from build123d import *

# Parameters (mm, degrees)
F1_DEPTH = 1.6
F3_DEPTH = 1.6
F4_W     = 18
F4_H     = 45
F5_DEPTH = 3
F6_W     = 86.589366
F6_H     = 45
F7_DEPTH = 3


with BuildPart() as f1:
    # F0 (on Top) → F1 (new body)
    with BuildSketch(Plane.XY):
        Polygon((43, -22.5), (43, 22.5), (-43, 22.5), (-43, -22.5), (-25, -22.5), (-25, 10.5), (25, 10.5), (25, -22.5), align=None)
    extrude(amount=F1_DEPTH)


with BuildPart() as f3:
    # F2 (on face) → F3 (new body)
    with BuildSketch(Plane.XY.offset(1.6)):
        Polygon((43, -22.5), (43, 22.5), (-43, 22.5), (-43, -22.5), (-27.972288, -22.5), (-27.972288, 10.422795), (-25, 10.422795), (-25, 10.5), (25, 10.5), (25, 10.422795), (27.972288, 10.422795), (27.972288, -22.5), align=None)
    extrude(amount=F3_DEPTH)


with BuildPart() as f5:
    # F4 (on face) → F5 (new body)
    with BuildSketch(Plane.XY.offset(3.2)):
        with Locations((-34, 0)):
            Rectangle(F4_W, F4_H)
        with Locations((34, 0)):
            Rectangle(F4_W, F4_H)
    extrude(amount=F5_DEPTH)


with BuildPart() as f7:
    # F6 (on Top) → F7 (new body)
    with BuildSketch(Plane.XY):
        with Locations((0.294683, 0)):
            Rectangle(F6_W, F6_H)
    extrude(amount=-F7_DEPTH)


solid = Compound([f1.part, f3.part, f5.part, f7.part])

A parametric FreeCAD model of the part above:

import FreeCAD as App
import Part
import Sketcher
from FreeCAD import Vector
Q = App.Units.Quantity


def add_polygon(sketch, points):
    """Adds a closed chain of lines whose ends are joined by coincident constraints."""
    first, n = sketch.GeometryCount, len(points)
    for a, b in zip(points, points[1:] + points[:1]):
        sketch.addGeometry(Part.LineSegment(App.Vector(*a, 0), App.Vector(*b, 0)), False)
    for i in range(n):
        sketch.addConstraint(Sketcher.Constraint("Coincident", first + i, 2, first + (i + 1) % n, 1))

doc = App.newDocument("Part")
body = doc.addObject("PartDesign::Body", "Body")

# Sketch on XY plane
sketch1 = body.newObject("Sketcher::SketchObject", "Sketch")
sketch1.AttachmentSupport = (doc.getObject("XY_Plane"), [""])
sketch1.MapMode = "FlatFace"
add_polygon(sketch1, [(43, -22), (43, 22), (-43, 22), (-43, -22), (-25, -22), (-25, 10), (25, 10), (25, -22)])  # lines 0-7
sketch1.addConstraint([
    Sketcher.Constraint("Vertical", 0),
    Sketcher.Constraint("Horizontal", 1),
    Sketcher.Constraint("Vertical", 2),
    Sketcher.Constraint("Horizontal", 3),
    Sketcher.Constraint("Vertical", 4),
    Sketcher.Constraint("Horizontal", 5),
    Sketcher.Constraint("Vertical", 6),
    Sketcher.Constraint("Horizontal", 7),
    Sketcher.Constraint("Symmetric", 0, 2, 2, 2, -1, 1),
    Sketcher.Constraint("Symmetric", 3, 2, 6, 2, -2),
    Sketcher.Constraint("DistanceX", 1, 2, 1, 1, Q("86 mm")),
    Sketcher.Constraint("DistanceX", 3, 1, 3, 2, Q("18 mm")),
    Sketcher.Constraint("DistanceY", 0, 1, 0, 2, Q("45 mm")),
    Sketcher.Constraint("DistanceY", 4, 1, 4, 2, Q("33 mm")),
])
pad1 = body.newObject("PartDesign::Pad", "Pad")
pad1.Profile = sketch1
pad1.Length = 1.6
body2 = doc.addObject("PartDesign::Body", "Body001")

# Sketch on XY plane
sketch2 = body2.newObject("Sketcher::SketchObject", "Sketch001")
sketch2.AttachmentSupport = (doc.getObject("XY_Plane001"), [""])
sketch2.MapMode = "FlatFace"
sketch2.AttachmentOffset = App.Placement(Vector(0, 0, 1.6), App.Rotation())
add_polygon(sketch2, [(43, -22.5), (43, 22.5), (-43, 22.5), (-43, -22.5), (-27.97, -22.5), (-27.97, 10.42), (-25, 10.42), (-25, 10.5), (25, 10.5), (25, 10.42), (27.97, 10.42), (27.97, -22.5)])  # lines 0-11
sketch2.addConstraint([
    Sketcher.Constraint("Vertical", 0),
    Sketcher.Constraint("Horizontal", 1),
    Sketcher.Constraint("Vertical", 2),
    Sketcher.Constraint("Horizontal", 3),
    Sketcher.Constraint("Vertical", 4),
    Sketcher.Constraint("Horizontal", 5),
    Sketcher.Constraint("Vertical", 6),
    Sketcher.Constraint("Horizontal", 7),
    Sketcher.Constraint("Vertical", 8),
    Sketcher.Constraint("Horizontal", 9),
    Sketcher.Constraint("Vertical", 10),
    Sketcher.Constraint("Horizontal", 11),
    Sketcher.Constraint("Symmetric", 0, 2, 2, 2, -1, 1),
    Sketcher.Constraint("Symmetric", 5, 2, 8, 2, -2),
    Sketcher.Constraint("Symmetric", 3, 2, 10, 2, -2),
    Sketcher.Constraint("DistanceX", 1, 2, 1, 1, Q("86 mm")),
    Sketcher.Constraint("DistanceX", 7, 1, 7, 2, Q("50 mm")),
    Sketcher.Constraint("DistanceY", 0, 1, 0, 2, Q("45 mm")),
    Sketcher.Constraint("DistanceY", 6, 2, 1, 2, Q("12 mm")),
    Sketcher.Constraint("DistanceX", 3, 1, 3, 2, Q("15.027712 mm")),
    Sketcher.Constraint("DistanceY", 4, 1, 4, 2, Q("32.922795 mm")),
])
pad2 = body2.newObject("PartDesign::Pad", "Pad001")
pad2.Profile = sketch2
pad2.Length = 1.6
body3 = doc.addObject("PartDesign::Body", "Body002")
body3.AllowCompound = True

# Sketch on XY plane
sketch3 = body3.newObject("Sketcher::SketchObject", "Sketch002")
sketch3.AttachmentSupport = (doc.getObject("XY_Plane002"), [""])
sketch3.MapMode = "FlatFace"
sketch3.AttachmentOffset = App.Placement(Vector(0, 0, 3.2), App.Rotation())
add_polygon(sketch3, [(-43, 22), (-43, -22), (-25, -22), (-25, 22)])  # lines 0-3
add_polygon(sketch3, [(25, 22), (25, -22), (43, -22), (43, 22)])  # lines 4-7
sketch3.addConstraint([
    Sketcher.Constraint("Vertical", 0),
    Sketcher.Constraint("Horizontal", 1),
    Sketcher.Constraint("Vertical", 2),
    Sketcher.Constraint("Horizontal", 3),
    Sketcher.Constraint("Vertical", 4),
    Sketcher.Constraint("Horizontal", 5),
    Sketcher.Constraint("Vertical", 6),
    Sketcher.Constraint("Horizontal", 7),
    Sketcher.Constraint("Symmetric", 2, 2, 4, 2, -1, 1),
    Sketcher.Constraint("Symmetric", 0, 2, 6, 2, -1, 1),
    Sketcher.Constraint("Horizontal", 1, 2, 4, 2),
    Sketcher.Constraint("DistanceX", 1, 1, 1, 2, Q("18 mm")),
    Sketcher.Constraint("DistanceY", 0, 2, 0, 1, Q("45 mm")),
    Sketcher.Constraint("DistanceX", 0, 2, -1, 1, Q("43 mm")),
])
pad3 = body3.newObject("PartDesign::Pad", "Pad002")
pad3.Profile = sketch3
pad3.Length = 3
body4 = doc.addObject("PartDesign::Body", "Body003")

# Sketch on XY plane
sketch4 = body4.newObject("Sketcher::SketchObject", "Sketch003")
sketch4.AttachmentSupport = (doc.getObject("XY_Plane003"), [""])
sketch4.MapMode = "FlatFace"
add_polygon(sketch4, [(-43, 22), (-43, -22), (44, -22), (44, 22)])  # lines 0-3
sketch4.addConstraint([
    Sketcher.Constraint("Vertical", 0),
    Sketcher.Constraint("Horizontal", 1),
    Sketcher.Constraint("Vertical", 2),
    Sketcher.Constraint("Horizontal", 3),
    Sketcher.Constraint("DistanceY", 0, 2, 0, 1, Q("45 mm")),
    Sketcher.Constraint("DistanceX", 0, 2, -1, 1, Q("43 mm")),
    Sketcher.Constraint("DistanceY", 0, 2, -1, 1, Q("22.5 mm")),
    Sketcher.Constraint("DistanceX", 1, 1, 1, 2, Q("86.589366 mm")),
])
pad4 = body4.newObject("PartDesign::Pad", "Pad003")
pad4.Profile = sketch4
pad4.Length = 3
pad4.Reversed = True

doc.recompute()
